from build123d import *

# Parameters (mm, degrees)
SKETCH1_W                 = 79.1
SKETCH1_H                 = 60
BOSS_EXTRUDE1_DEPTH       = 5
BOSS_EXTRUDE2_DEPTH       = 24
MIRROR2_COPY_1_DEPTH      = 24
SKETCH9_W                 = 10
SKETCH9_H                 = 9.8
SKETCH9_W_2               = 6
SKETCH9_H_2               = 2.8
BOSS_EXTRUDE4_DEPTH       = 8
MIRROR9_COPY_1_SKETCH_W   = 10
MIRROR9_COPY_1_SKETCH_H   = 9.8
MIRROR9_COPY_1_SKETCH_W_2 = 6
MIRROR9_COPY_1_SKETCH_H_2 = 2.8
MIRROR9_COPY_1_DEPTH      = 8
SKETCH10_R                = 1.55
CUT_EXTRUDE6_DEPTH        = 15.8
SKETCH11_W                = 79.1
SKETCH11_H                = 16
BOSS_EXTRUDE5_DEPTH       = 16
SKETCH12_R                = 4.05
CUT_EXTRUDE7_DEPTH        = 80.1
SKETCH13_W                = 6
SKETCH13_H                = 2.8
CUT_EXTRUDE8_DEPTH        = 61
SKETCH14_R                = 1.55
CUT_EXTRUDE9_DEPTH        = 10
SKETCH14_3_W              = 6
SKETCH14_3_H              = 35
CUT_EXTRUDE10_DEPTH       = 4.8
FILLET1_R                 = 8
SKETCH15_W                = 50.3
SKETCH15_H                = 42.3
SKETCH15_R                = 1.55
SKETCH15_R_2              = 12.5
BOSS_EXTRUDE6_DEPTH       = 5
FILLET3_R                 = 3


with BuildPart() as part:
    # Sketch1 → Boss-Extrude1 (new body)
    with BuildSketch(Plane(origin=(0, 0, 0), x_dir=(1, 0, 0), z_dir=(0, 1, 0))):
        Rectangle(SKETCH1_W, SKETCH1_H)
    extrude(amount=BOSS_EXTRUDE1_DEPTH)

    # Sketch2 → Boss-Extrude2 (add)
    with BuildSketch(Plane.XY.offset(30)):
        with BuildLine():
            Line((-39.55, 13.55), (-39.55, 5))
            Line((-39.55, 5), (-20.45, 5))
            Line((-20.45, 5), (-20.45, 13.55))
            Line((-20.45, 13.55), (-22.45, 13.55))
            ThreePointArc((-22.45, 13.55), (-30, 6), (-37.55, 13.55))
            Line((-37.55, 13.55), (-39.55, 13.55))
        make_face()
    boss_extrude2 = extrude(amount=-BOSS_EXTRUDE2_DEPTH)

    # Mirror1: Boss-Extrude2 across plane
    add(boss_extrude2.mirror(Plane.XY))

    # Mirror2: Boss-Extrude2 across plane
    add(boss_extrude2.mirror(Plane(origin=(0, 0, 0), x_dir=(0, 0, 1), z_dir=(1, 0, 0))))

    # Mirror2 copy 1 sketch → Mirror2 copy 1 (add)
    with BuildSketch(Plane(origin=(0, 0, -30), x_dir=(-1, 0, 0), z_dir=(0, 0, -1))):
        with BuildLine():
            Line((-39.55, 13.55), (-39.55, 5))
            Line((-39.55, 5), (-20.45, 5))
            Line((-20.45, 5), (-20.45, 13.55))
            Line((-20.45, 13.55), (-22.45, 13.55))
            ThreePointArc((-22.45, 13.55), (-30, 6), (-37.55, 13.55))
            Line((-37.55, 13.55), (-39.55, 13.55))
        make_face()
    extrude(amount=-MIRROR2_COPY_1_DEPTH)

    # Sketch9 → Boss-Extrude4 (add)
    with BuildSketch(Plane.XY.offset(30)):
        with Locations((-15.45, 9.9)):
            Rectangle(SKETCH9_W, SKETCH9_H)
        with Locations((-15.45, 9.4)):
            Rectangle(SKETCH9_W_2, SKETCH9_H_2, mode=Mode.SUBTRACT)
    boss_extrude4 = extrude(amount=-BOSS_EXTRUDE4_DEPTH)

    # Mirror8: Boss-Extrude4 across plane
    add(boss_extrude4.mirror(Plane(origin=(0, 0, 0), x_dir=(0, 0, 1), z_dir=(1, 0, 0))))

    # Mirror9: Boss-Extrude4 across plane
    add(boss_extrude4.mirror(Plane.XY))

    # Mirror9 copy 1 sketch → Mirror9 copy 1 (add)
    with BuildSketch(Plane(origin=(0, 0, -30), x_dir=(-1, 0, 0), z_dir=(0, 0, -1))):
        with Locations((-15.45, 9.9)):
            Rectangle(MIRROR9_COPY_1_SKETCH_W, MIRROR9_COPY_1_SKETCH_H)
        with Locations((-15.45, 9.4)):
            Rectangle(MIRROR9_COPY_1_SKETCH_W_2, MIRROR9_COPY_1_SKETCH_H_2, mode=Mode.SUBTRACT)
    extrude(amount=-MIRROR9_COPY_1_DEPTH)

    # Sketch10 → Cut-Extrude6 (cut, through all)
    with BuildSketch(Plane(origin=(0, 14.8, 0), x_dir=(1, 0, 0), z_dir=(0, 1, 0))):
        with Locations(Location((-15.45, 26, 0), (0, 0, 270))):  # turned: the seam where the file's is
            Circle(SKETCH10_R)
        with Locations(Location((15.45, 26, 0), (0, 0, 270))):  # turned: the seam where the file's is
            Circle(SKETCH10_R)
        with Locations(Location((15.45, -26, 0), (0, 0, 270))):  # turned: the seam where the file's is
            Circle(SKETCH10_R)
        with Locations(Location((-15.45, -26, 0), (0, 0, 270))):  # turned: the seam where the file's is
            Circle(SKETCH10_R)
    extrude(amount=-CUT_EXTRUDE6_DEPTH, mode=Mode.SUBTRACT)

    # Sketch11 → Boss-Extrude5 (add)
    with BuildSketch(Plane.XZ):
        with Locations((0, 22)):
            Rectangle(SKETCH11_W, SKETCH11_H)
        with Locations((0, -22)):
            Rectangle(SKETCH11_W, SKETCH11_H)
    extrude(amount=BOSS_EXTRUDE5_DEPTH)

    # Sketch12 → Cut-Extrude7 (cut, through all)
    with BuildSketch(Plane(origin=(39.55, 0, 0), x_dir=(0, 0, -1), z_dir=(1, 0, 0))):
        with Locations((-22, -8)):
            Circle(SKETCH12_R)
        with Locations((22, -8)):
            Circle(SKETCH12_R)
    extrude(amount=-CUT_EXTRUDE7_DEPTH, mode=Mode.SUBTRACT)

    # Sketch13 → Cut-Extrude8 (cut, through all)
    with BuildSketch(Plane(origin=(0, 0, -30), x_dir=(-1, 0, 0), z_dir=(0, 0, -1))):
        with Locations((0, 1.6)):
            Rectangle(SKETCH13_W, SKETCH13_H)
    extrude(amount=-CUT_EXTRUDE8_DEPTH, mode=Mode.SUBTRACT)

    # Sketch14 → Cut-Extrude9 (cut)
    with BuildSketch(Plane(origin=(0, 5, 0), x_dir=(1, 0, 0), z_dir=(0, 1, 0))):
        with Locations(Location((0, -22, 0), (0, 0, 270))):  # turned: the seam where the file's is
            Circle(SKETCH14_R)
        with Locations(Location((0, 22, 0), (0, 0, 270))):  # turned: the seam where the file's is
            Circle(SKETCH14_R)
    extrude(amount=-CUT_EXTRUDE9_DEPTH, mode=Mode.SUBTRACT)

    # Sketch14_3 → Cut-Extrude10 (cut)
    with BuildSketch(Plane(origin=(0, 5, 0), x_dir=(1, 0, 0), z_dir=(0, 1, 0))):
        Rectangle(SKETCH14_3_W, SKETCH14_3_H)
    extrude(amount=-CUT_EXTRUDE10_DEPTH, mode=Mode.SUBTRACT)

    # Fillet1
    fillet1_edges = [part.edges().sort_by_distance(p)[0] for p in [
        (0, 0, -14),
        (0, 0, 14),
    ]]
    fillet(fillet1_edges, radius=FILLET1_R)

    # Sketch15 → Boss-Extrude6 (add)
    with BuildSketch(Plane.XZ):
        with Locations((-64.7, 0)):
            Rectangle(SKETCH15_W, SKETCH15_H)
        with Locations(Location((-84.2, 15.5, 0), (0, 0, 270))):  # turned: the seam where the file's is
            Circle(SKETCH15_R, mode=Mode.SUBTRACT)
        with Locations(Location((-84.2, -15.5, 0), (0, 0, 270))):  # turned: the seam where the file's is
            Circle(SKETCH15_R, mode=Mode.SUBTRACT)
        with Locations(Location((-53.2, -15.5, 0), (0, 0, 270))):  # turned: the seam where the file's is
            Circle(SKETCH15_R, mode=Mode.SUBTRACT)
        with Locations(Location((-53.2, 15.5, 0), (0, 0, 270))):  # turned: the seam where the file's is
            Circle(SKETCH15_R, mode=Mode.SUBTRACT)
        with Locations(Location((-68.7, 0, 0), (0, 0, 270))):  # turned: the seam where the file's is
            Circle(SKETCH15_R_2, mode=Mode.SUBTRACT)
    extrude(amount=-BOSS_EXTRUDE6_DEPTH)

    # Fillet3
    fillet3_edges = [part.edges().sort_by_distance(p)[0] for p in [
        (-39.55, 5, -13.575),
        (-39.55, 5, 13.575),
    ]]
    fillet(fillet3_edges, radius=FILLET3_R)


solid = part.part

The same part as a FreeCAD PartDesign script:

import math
import FreeCAD as App
import Part
import Sketcher
Q = App.Units.Quantity


def edges_at(feature, points):
    """Names of the edges that pass closest to the given points."""
    edges = feature.Shape.Edges
    near = lambda p: min(range(len(edges)), key=lambda i: edges[i].distToShape(Part.Vertex(*p))[0])
    return sorted({f"Edge{near(p) + 1}" for p in points})

doc = App.newDocument("Part")
body = doc.addObject("PartDesign::Body", "Body")

sketch1 = body.newObject("Sketcher::SketchObject", "Sketch")
sketch1.AttachmentSupport = (doc.getObject("XZ_Plane"), [""])
sketch1.MapMode = "FlatFace"
sketch1.addGeometry(Part.LineSegment(App.Vector(-40, -30, 0), App.Vector(-40, 30, 0)), False)
sketch1.addGeometry(Part.LineSegment(App.Vector(-40, 30, 0), App.Vector(40, 30, 0)), False)
sketch1.addGeometry(Part.LineSegment(App.Vector(40, 30, 0), App.Vector(40, -30, 0)), False)
sketch1.addGeometry(Part.LineSegment(App.Vector(40, -30, 0), App.Vector(-40, -30, 0)), False)
sketch1.addConstraint(Sketcher.Constraint("Coincident", 0, 2, 1, 1))
sketch1.addConstraint(Sketcher.Constraint("Coincident", 1, 2, 2, 1))
sketch1.addConstraint(Sketcher.Constraint("Coincident", 2, 2, 3, 1))
sketch1.addConstraint(Sketcher.Constraint("Coincident", 3, 2, 0, 1))
sketch1.addConstraint(Sketcher.Constraint("Vertical", 0))
sketch1.addConstraint(Sketcher.Constraint("Horizontal", 1))
sketch1.addConstraint(Sketcher.Constraint("Vertical", 2))
sketch1.addConstraint(Sketcher.Constraint("Horizontal", 3))
sketch1.addConstraint(Sketcher.Constraint("Symmetric", 0, 2, 2, 2, -1, 1))
sketch1.addConstraint(Sketcher.Constraint("DistanceY", 0, 1, 0, 2, Q("60 mm")))
sketch1.addConstraint(Sketcher.Constraint("DistanceX", 1, 1, 1, 2, Q("79.1 mm")))
pad1 = body.newObject("PartDesign::Pad", "Pad")
pad1.Profile = sketch1
pad1.Length = 5
pad1.Reversed = True

sketch2 = body.newObject("Sketcher::SketchObject", "Sketch001")
sketch2.AttachmentSupport = (doc.getObject("XY_Plane"), [""])
sketch2.MapMode = "FlatFace"
sketch2.AttachmentOffset = App.Placement(App.Vector(0, 0, 30), App.Rotation())
sketch2.addGeometry(Part.LineSegment(App.Vector(-39.5, 13.6, 0), App.Vector(-39.5, 5, 0)), False)
sketch2.addGeometry(Part.LineSegment(App.Vector(-39.5, 5, 0), App.Vector(-20.4, 5, 0)), False)
sketch2.addGeometry(Part.LineSegment(App.Vector(-20.4, 5, 0), App.Vector(-20.4, 13.6, 0)), False)
sketch2.addGeometry(Part.LineSegment(App.Vector(-20.4, 13.6, 0), App.Vector(-22.4, 13.6, 0)), False)
sketch2.addGeometry(Part.ArcOfCircle(Part.Circle(App.Vector(-30, 13.6, 0), App.Vector(0, 0, 1), 7.5), math.radians(180), math.radians(360)), False)
sketch2.addGeometry(Part.LineSegment(App.Vector(-37.5, 13.6, 0), App.Vector(-39.5, 13.6, 0)), False)
sketch2.addConstraint(Sketcher.Constraint("Coincident", 0, 2, 1, 1))
sketch2.addConstraint(Sketcher.Constraint("Coincident", 1, 2, 2, 1))
sketch2.addConstraint(Sketcher.Constraint("Coincident", 2, 2, 3, 1))
sketch2.addConstraint(Sketcher.Constraint("Coincident", 3, 2, 4, 2))
sketch2.addConstraint(Sketcher.Constraint("Coincident", 4, 1, 5, 1))
sketch2.addConstraint(Sketcher.Constraint("Coincident", 5, 2, 0, 1))
sketch2.addConstraint(Sketcher.Constraint("Vertical", 0))
sketch2.addConstraint(Sketcher.Constraint("Horizontal", 1))
sketch2.addConstraint(Sketcher.Constraint("Vertical", 2))
sketch2.addConstraint(Sketcher.Constraint("Horizontal", 3))
sketch2.addConstraint(Sketcher.Constraint("Horizontal", 5))
sketch2.addConstraint(Sketcher.Constraint("Horizontal", 4, 3, 2, 2))
sketch2.addConstraint(Sketcher.Constraint("Horizontal", 3, 2, 4, 1))
sketch2.addConstraint(Sketcher.Constraint("Equal", 3, 5))
sketch2.addConstraint(Sketcher.Constraint("DistanceX", 3, 2, 3, 1, Q("2 mm")))
sketch2.addConstraint(Sketcher.Constraint("Radius", 4, Q("7.55 mm")))
sketch2.addConstraint(Sketcher.Constraint("DistanceX", 4, 3, -1, 1, Q("30 mm")))
sketch2.addConstraint(Sketcher.Constraint("DistanceY", -1, 1, 0, 2, Q("5 mm")))
sketch2.addConstraint(Sketcher.Constraint("DistanceY", 0, 2, 0, 1, Q("8.55 mm")))
pad2 = body.newObject("PartDesign::Pad", "Pad001")
pad2.Profile = sketch2
pad2.Length = 24
pad2.Reversed = True
doc.recompute()

mirrored = body.newObject("PartDesign::Mirrored", "Mirrored")
mirrored.Originals = [pad2]
mirrored.MirrorPlane = (doc.getObject("XY_Plane"), [""])
body.Tip = mirrored
doc.recompute()

mirrored2 = body.newObject("PartDesign::Mirrored", "Mirrored001")
mirrored2.Originals = [pad2]
mirrored2.MirrorPlane = (doc.getObject("YZ_Plane"), [""])
body.Tip = mirrored2

sketch3 = body.newObject("Sketcher::SketchObject", "Sketch002")
sketch3.AttachmentSupport = (doc.getObject("XY_Plane"), [""])
sketch3.MapMode = "FlatFace"
sketch3.AttachmentOffset = App.Placement(App.Vector(0, 0, -30), App.Rotation())
sketch3.addGeometry(Part.LineSegment(App.Vector(39.5, 13.6, 0), App.Vector(39.5, 5, 0)), False)
sketch3.addGeometry(Part.LineSegment(App.Vector(39.5, 5, 0), App.Vector(20.4, 5, 0)), False)
sketch3.addGeometry(Part.LineSegment(App.Vector(20.4, 5, 0), App.Vector(20.4, 13.6, 0)), False)
sketch3.addGeometry(Part.LineSegment(App.Vector(20.4, 13.6, 0), App.Vector(22.4, 13.6, 0)), False)
sketch3.addGeometry(Part.ArcOfCircle(Part.Circle(App.Vector(30, 13.6, 0), App.Vector(0, 0, 1), 7.5), math.radians(180), math.radians(360)), False)
sketch3.addGeometry(Part.LineSegment(App.Vector(37.5, 13.6, 0), App.Vector(39.5, 13.6, 0)), False)
sketch3.addConstraint(Sketcher.Constraint("Coincident", 0, 2, 1, 1))
sketch3.addConstraint(Sketcher.Constraint("Coincident", 1, 2, 2, 1))
sketch3.addConstraint(Sketcher.Constraint("Coincident", 2, 2, 3, 1))
sketch3.addConstraint(Sketcher.Constraint("Coincident", 3, 2, 4, 1))
sketch3.addConstraint(Sketcher.Constraint("Coincident", 4, 2, 5, 1))
sketch3.addConstraint(Sketcher.Constraint("Coincident", 5, 2, 0, 1))
sketch3.addConstraint(Sketcher.Constraint("Vertical", 0))
sketch3.addConstraint(Sketcher.Constraint("Horizontal", 1))
sketch3.addConstraint(Sketcher.Constraint("Vertical", 2))
sketch3.addConstraint(Sketcher.Constraint("Horizontal", 3))
sketch3.addConstraint(Sketcher.Constraint("Horizontal", 5))
sketch3.addConstraint(Sketcher.Constraint("Horizontal", 4, 3, 2, 2))
sketch3.addConstraint(Sketcher.Constraint("Horizontal", 3, 2, 4, 2))
sketch3.addConstraint(Sketcher.Constraint("Equal", 3, 5))
sketch3.addConstraint(Sketcher.Constraint("DistanceX", 3, 1, 3, 2, Q("2 mm")))
sketch3.addConstraint(Sketcher.Constraint("Radius", 4, Q("7.55 mm")))
sketch3.addConstraint(Sketcher.Constraint("DistanceX", -1, 1, 4, 3, Q("30 mm")))
sketch3.addConstraint(Sketcher.Constraint("DistanceY", -1, 1, 0, 2, Q("5 mm")))
sketch3.addConstraint(Sketcher.Constraint("DistanceY", 0, 2, 0, 1, Q("8.55 mm")))
pad3 = body.newObject("PartDesign::Pad", "Pad002")
pad3.Profile = sketch3
pad3.Length = 24

sketch4 = body.newObject("Sketcher::SketchObject", "Sketch003")
sketch4.AttachmentSupport = (doc.getObject("XY_Plane"), [""])
sketch4.MapMode = "FlatFace"
sketch4.AttachmentOffset = App.Placement(App.Vector(0, 0, 30), App.Rotation())
sketch4.addGeometry(Part.LineSegment(App.Vector(-20.4, 14.8, 0), App.Vector(-20.4, 5, 0)), False)
sketch4.addGeometry(Part.LineSegment(App.Vector(-20.4, 5, 0), App.Vector(-10.4, 5, 0)), False)
sketch4.addGeometry(Part.LineSegment(App.Vector(-10.4, 5, 0), App.Vector(-10.4, 14.8, 0)), False)
sketch4.addGeometry(Part.LineSegment(App.Vector(-10.4, 14.8, 0), App.Vector(-20.4, 14.8, 0)), False)
sketch4.addGeometry(Part.LineSegment(App.Vector(-12.4, 8, 0), App.Vector(-18.4, 8, 0)), False)
sketch4.addGeometry(Part.LineSegment(App.Vector(-18.4, 8, 0), App.Vector(-18.4, 10.8, 0)), False)
sketch4.addGeometry(Part.LineSegment(App.Vector(-18.4, 10.8, 0), App.Vector(-12.4, 10.8, 0)), False)
sketch4.addGeometry(Part.LineSegment(App.Vector(-12.4, 10.8, 0), App.Vector(-12.4, 8, 0)), False)
sketch4.addConstraint(Sketcher.Constraint("Coincident", 0, 2, 1, 1))
sketch4.addConstraint(Sketcher.Constraint("Coincident", 1, 2, 2, 1))
sketch4.addConstraint(Sketcher.Constraint("Coincident", 2, 2, 3, 1))
sketch4.addConstraint(Sketcher.Constraint("Coincident", 3, 2, 0, 1))
sketch4.addConstraint(Sketcher.Constraint("Coincident", 4, 2, 5, 1))
sketch4.addConstraint(Sketcher.Constraint("Coincident", 5, 2, 6, 1))
sketch4.addConstraint(Sketcher.Constraint("Coincident", 6, 2, 7, 1))
sketch4.addConstraint(Sketcher.Constraint("Coincident", 7, 2, 4, 1))
sketch4.addConstraint(Sketcher.Constraint("Vertical", 0))
sketch4.addConstraint(Sketcher.Constraint("Horizontal", 1))
sketch4.addConstraint(Sketcher.Constraint("Vertical", 2))
sketch4.addConstraint(Sketcher.Constraint("Horizontal", 3))
sketch4.addConstraint(Sketcher.Constraint("Horizontal", 4))
sketch4.addConstraint(Sketcher.Constraint("Vertical", 5))
sketch4.addConstraint(Sketcher.Constraint("Horizontal", 6))
sketch4.addConstraint(Sketcher.Constraint("Vertical", 7))
sketch4.addConstraint(Sketcher.Constraint("DistanceX", 1, 1, 1, 2, Q("10 mm")))
sketch4.addConstraint(Sketcher.Constraint("DistanceX", 4, 2, 4, 1, Q("6 mm")))
sketch4.addConstraint(Sketcher.Constraint("DistanceY", 0, 2, 0, 1, Q("9.8 mm")))
sketch4.addConstraint(Sketcher.Constraint("DistanceY", 5, 1, 5, 2, Q("2.8 mm")))
sketch4.addConstraint(Sketcher.Constraint("DistanceY", -1, 1, 0, 2, Q("5 mm")))
sketch4.addConstraint(Sketcher.Constraint("DistanceY", -1, 1, 4, 2, Q("8 mm")))
sketch4.addConstraint(Sketcher.Constraint("DistanceX", 0, 2, 4, 2, Q("2 mm")))
sketch4.addConstraint(Sketcher.Constraint("DistanceX", 0, 2, -1, 1, Q("20.45 mm")))
pad4 = body.newObject("PartDesign::Pad", "Pad003")
pad4.Profile = sketch4
pad4.Length = 8
pad4.Reversed = True
doc.recompute()

mirrored3 = body.newObject("PartDesign::Mirrored", "Mirrored002")
mirrored3.Originals = [pad4]
mirrored3.MirrorPlane = (doc.getObject("YZ_Plane"), [""])
body.Tip = mirrored3
doc.recompute()

mirrored4 = body.newObject("PartDesign::Mirrored", "Mirrored003")
mirrored4.Originals = [pad4]
mirrored4.MirrorPlane = (doc.getObject("XY_Plane"), [""])
body.Tip = mirrored4

sketch5 = body.newObject("Sketcher::SketchObject", "Sketch004")
sketch5.AttachmentSupport = (doc.getObject("XY_Plane"), [""])
sketch5.MapMode = "FlatFace"
sketch5.AttachmentOffset = App.Placement(App.Vector(0, 0, -30), App.Rotation())
sketch5.addGeometry(Part.LineSegment(App.Vector(20.4, 14.8, 0), App.Vector(20.4, 5, 0)), False)
sketch5.addGeometry(Part.LineSegment(App.Vector(20.4, 5, 0), App.Vector(10.4, 5, 0)), False)
sketch5.addGeometry(Part.LineSegment(App.Vector(10.4, 5, 0), App.Vector(10.4, 14.8, 0)), False)
sketch5.addGeometry(Part.LineSegment(App.Vector(10.4, 14.8, 0), App.Vector(20.4, 14.8, 0)), False)
sketch5.addGeometry(Part.LineSegment(App.Vector(12.4, 8, 0), App.Vector(18.4, 8, 0)), False)
sketch5.addGeometry(Part.LineSegment(App.Vector(18.4, 8, 0), App.Vector(18.4, 10.8, 0)), False)
sketch5.addGeometry(Part.LineSegment(App.Vector(18.4, 10.8, 0), App.Vector(12.4, 10.8, 0)), False)
sketch5.addGeometry(Part.LineSegment(App.Vector(12.4, 10.8, 0), App.Vector(12.4, 8, 0)), False)
sketch5.addConstraint(Sketcher.Constraint("Coincident", 0, 2, 1, 1))
sketch5.addConstraint(Sketcher.Constraint("Coincident", 1, 2, 2, 1))
sketch5.addConstraint(Sketcher.Constraint("Coincident", 2, 2, 3, 1))
sketch5.addConstraint(Sketcher.Constraint("Coincident", 3, 2, 0, 1))
sketch5.addConstraint(Sketcher.Constraint("Coincident", 4, 2, 5, 1))
sketch5.addConstraint(Sketcher.Constraint("Coincident", 5, 2, 6, 1))
sketch5.addConstraint(Sketcher.Constraint("Coincident", 6, 2, 7, 1))
sketch5.addConstraint(Sketcher.Constraint("Coincident", 7, 2, 4, 1))
sketch5.addConstraint(Sketcher.Constraint("Vertical", 0))
sketch5.addConstraint(Sketcher.Constraint("Horizontal", 1))
sketch5.addConstraint(Sketcher.Constraint("Vertical", 2))
sketch5.addConstraint(Sketcher.Constraint("Horizontal", 3))
sketch5.addConstraint(Sketcher.Constraint("Horizontal", 4))
sketch5.addConstraint(Sketcher.Constraint("Vertical", 5))
sketch5.addConstraint(Sketcher.Constraint("Horizontal", 6))
sketch5.addConstraint(Sketcher.Constraint("Vertical", 7))
sketch5.addConstraint(Sketcher.Constraint("DistanceX", 1, 2, 1, 1, Q("10 mm")))
sketch5.addConstraint(Sketcher.Constraint("DistanceX", 4, 1, 4, 2, Q("6 mm")))
sketch5.addConstraint(Sketcher.Constraint("DistanceY", 0, 2, 0, 1, Q("9.8 mm")))
sketch5.addConstraint(Sketcher.Constraint("DistanceY", 5, 1, 5, 2, Q("2.8 mm")))
sketch5.addConstraint(Sketcher.Constraint("DistanceY", -1, 1, 0, 2, Q("5 mm")))
sketch5.addConstraint(Sketcher.Constraint("DistanceY", -1, 1, 4, 2, Q("8 mm")))
sketch5.addConstraint(Sketcher.Constraint("DistanceX", 4, 2, 0, 2, Q("2 mm")))
sketch5.addConstraint(Sketcher.Constraint("DistanceX", -1, 1, 0, 2, Q("20.45 mm")))
pad5 = body.newObject("PartDesign::Pad", "Pad004")
pad5.Profile = sketch5
pad5.Length = 8

sketch6 = body.newObject("Sketcher::SketchObject", "Sketch005")
sketch6.AttachmentSupport = (doc.getObject("XZ_Plane"), [""])
sketch6.MapMode = "FlatFace"
sketch6.AttachmentOffset = App.Placement(App.Vector(0, 0, -14.8), App.Rotation())
sketch6.addGeometry(Part.Circle(App.Vector(-15.4, -26, 0), App.Vector(0, 0, 1), 1.6), False)
sketch6.addGeometry(Part.Circle(App.Vector(15.4, -26, 0), App.Vector(0, 0, 1), 1.6), False)
sketch6.addGeometry(Part.Circle(App.Vector(15.4, 26, 0), App.Vector(0, 0, 1), 1.6), False)
sketch6.addGeometry(Part.Circle(App.Vector(-15.4, 26, 0), App.Vector(0, 0, 1), 1.6), False)
sketch6.addConstraint(Sketcher.Constraint("Equal", 0, 1))
sketch6.addConstraint(Sketcher.Constraint("Equal", 1, 2))
sketch6.addConstraint(Sketcher.Constraint("Equal", 2, 3))
sketch6.addConstraint(Sketcher.Constraint("Symmetric", 0, 3, 2, 3, -1, 1))
sketch6.addConstraint(Sketcher.Constraint("Symmetric", 1, 3, 3, 3, -1, 1))
sketch6.addConstraint(Sketcher.Constraint("Symmetric", 0, 3, 1, 3, -2))
sketch6.addConstraint(Sketcher.Constraint("Diameter", 0, Q("3.1 mm")))
sketch6.addConstraint(Sketcher.Constraint("DistanceY", 0, 3, -1, 1, Q("26 mm")))
sketch6.addConstraint(Sketcher.Constraint("DistanceX", 0, 3, 1, 3, Q("30.9 mm")))
pocket1 = body.newObject("PartDesign::Pocket", "Pocket")
pocket1.Profile = sketch6
pocket1.Type = "ThroughAll"
pocket1.Reversed = True

sketch7 = body.newObject("Sketcher::SketchObject", "Sketch006")
sketch7.AttachmentSupport = (doc.getObject("XZ_Plane"), [""])
sketch7.MapMode = "FlatFace"
sketch7.addGeometry(Part.LineSegment(App.Vector(-40, 30, 0), App.Vector(-40, 14, 0)), False)
sketch7.addGeometry(Part.LineSegment(App.Vector(-40, 14, 0), App.Vector(40, 14, 0)), False)
sketch7.addGeometry(Part.LineSegment(App.Vector(40, 14, 0), App.Vector(40, 30, 0)), False)
sketch7.addGeometry(Part.LineSegment(App.Vector(40, 30, 0), App.Vector(-40, 30, 0)), False)
sketch7.addGeometry(Part.LineSegment(App.Vector(-40, -14, 0), App.Vector(-40, -30, 0)), False)
sketch7.addGeometry(Part.LineSegment(App.Vector(-40, -30, 0), App.Vector(40, -30, 0)), False)
sketch7.addGeometry(Part.LineSegment(App.Vector(40, -30, 0), App.Vector(40, -14, 0)), False)
sketch7.addGeometry(Part.LineSegment(App.Vector(40, -14, 0), App.Vector(-40, -14, 0)), False)
sketch7.addConstraint(Sketcher.Constraint("Coincident", 0, 2, 1, 1))
sketch7.addConstraint(Sketcher.Constraint("Coincident", 1, 2, 2, 1))
sketch7.addConstraint(Sketcher.Constraint("Coincident", 2, 2, 3, 1))
sketch7.addConstraint(Sketcher.Constraint("Coincident", 3, 2, 0, 1))
sketch7.addConstraint(Sketcher.Constraint("Coincident", 4, 2, 5, 1))
sketch7.addConstraint(Sketcher.Constraint("Coincident", 5, 2, 6, 1))
sketch7.addConstraint(Sketcher.Constraint("Coincident", 6, 2, 7, 1))
sketch7.addConstraint(Sketcher.Constraint("Coincident", 7, 2, 4, 1))
sketch7.addConstraint(Sketcher.Constraint("Vertical", 0))
sketch7.addConstraint(Sketcher.Constraint("Horizontal", 1))
sketch7.addConstraint(Sketcher.Constraint("Vertical", 2))
sketch7.addConstraint(Sketcher.Constraint("Horizontal", 3))
sketch7.addConstraint(Sketcher.Constraint("Vertical", 4))
sketch7.addConstraint(Sketcher.Constraint("Horizontal", 5))
sketch7.addConstraint(Sketcher.Constraint("Vertical", 6))
sketch7.addConstraint(Sketcher.Constraint("Horizontal", 7))
sketch7.addConstraint(Sketcher.Constraint("Symmetric", 2, 2, 4, 2, -1, 1))
sketch7.addConstraint(Sketcher.Constraint("Symmetric", 0, 2, 6, 2, -1, 1))
sketch7.addConstraint(Sketcher.Constraint("Vertical", 3, 2, 4, 2))
sketch7.addConstraint(Sketcher.Constraint("DistanceY", 0, 2, 0, 1, Q("16 mm")))
sketch7.addConstraint(Sketcher.Constraint("DistanceX", 1, 1, 1, 2, Q("79.1 mm")))
sketch7.addConstraint(Sketcher.Constraint("DistanceY", -1, 1, 0, 2, Q("14 mm")))
pad6 = body.newObject("PartDesign::Pad", "Pad005")
pad6.Profile = sketch7
pad6.Length = 16

sketch8 = body.newObject("Sketcher::SketchObject", "Sketch007")
sketch8.AttachmentSupport = (doc.getObject("YZ_Plane"), [""])
sketch8.MapMode = "FlatFace"
sketch8.AttachmentOffset = App.Placement(App.Vector(0, 0, 39.55), App.Rotation())
sketch8.addGeometry(Part.Circle(App.Vector(-8, 22, 0), App.Vector(0, 0, 1), 4), False)
sketch8.addGeometry(Part.Circle(App.Vector(-8, -22, 0), App.Vector(0, 0, 1), 4), False)
sketch8.addConstraint(Sketcher.Constraint("Equal", 0, 1))
sketch8.addConstraint(Sketcher.Constraint("Symmetric", 0, 3, 1, 3, -1))
sketch8.addConstraint(Sketcher.Constraint("Diameter", 0, Q("8.1 mm")))
sketch8.addConstraint(Sketcher.Constraint("DistanceX", 0, 3, -1, 1, Q("8 mm")))
sketch8.addConstraint(Sketcher.Constraint("DistanceY", -1, 1, 0, 3, Q("22 mm")))
pocket2 = body.newObject("PartDesign::Pocket", "Pocket001")
pocket2.Profile = sketch8
pocket2.Type = "ThroughAll"

sketch9 = body.newObject("Sketcher::SketchObject", "Sketch008")
sketch9.AttachmentSupport = (doc.getObject("XY_Plane"), [""])
sketch9.MapMode = "FlatFace"
sketch9.AttachmentOffset = App.Placement(App.Vector(0, 0, -30), App.Rotation())
sketch9.addGeometry(Part.LineSegment(App.Vector(3, 3, 0), App.Vector(3, 0.2, 0)), False)
sketch9.addGeometry(Part.LineSegment(App.Vector(3, 0.2, 0), App.Vector(-3, 0.2, 0)), False)
sketch9.addGeometry(Part.LineSegment(App.Vector(-3, 0.2, 0), App.Vector(-3, 3, 0)), False)
sketch9.addGeometry(Part.LineSegment(App.Vector(-3, 3, 0), App.Vector(3, 3, 0)), False)
sketch9.addConstraint(Sketcher.Constraint("Coincident", 0, 2, 1, 1))
sketch9.addConstraint(Sketcher.Constraint("Coincident", 1, 2, 2, 1))
sketch9.addConstraint(Sketcher.Constraint("Coincident", 2, 2, 3, 1))
sketch9.addConstraint(Sketcher.Constraint("Coincident", 3, 2, 0, 1))
sketch9.addConstraint(Sketcher.Constraint("Vertical", 0))
sketch9.addConstraint(Sketcher.Constraint("Horizontal", 1))
sketch9.addConstraint(Sketcher.Constraint("Vertical", 2))
sketch9.addConstraint(Sketcher.Constraint("Horizontal", 3))
sketch9.addConstraint(Sketcher.Constraint("DistanceX", 1, 2, 1, 1, Q("6 mm")))
sketch9.addConstraint(Sketcher.Constraint("DistanceY", 0, 2, 0, 1, Q("2.8 mm")))
sketch9.addConstraint(Sketcher.Constraint("DistanceX", -1, 1, 0, 2, Q("3 mm")))
sketch9.addConstraint(Sketcher.Constraint("DistanceY", -1, 1, 2, 2, Q("3 mm")))
pocket3 = body.newObject("PartDesign::Pocket", "Pocket002")
pocket3.Profile = sketch9
pocket3.Type = "ThroughAll"
pocket3.Reversed = True

sketch10 = body.newObject("Sketcher::SketchObject", "Sketch009")
sketch10.AttachmentSupport = (doc.getObject("XZ_Plane"), [""])
sketch10.MapMode = "FlatFace"
sketch10.AttachmentOffset = App.Placement(App.Vector(0, 0, -5), App.Rotation())
sketch10.addGeometry(Part.Circle(App.Vector(0, 22, 0), App.Vector(0, 0, 1), 1.6), False)
sketch10.addGeometry(Part.Circle(App.Vector(0, -22, 0), App.Vector(0, 0, 1), 1.6), False)
sketch10.addConstraint(Sketcher.Constraint("Equal", 0, 1))
sketch10.addConstraint(Sketcher.Constraint("Symmetric", 0, 3, 1, 3, -1, 1))
sketch10.addConstraint(Sketcher.Constraint("PointOnObject", 0, 3, -2))
sketch10.addConstraint(Sketcher.Constraint("Diameter", 0, Q("3.1 mm")))
sketch10.addConstraint(Sketcher.Constraint("DistanceY", -1, 1, 0, 3, Q("22 mm")))
pocket4 = body.newObject("PartDesign::Pocket", "Pocket003")
pocket4.Profile = sketch10
pocket4.Length = 10
pocket4.Reversed = True

sketch11 = body.newObject("Sketcher::SketchObject", "Sketch010")
sketch11.AttachmentSupport = (doc.getObject("XZ_Plane"), [""])
sketch11.MapMode = "FlatFace"
sketch11.AttachmentOffset = App.Placement(App.Vector(0, 0, -5), App.Rotation())
sketch11.addGeometry(Part.LineSegment(App.Vector(-3, -18, 0), App.Vector(-3, 18, 0)), False)
sketch11.addGeometry(Part.LineSegment(App.Vector(-3, 18, 0), App.Vector(3, 18, 0)), False)
sketch11.addGeometry(Part.LineSegment(App.Vector(3, 18, 0), App.Vector(3, -18, 0)), False)
sketch11.addGeometry(Part.LineSegment(App.Vector(3, -18, 0), App.Vector(-3, -18, 0)), False)
sketch11.addConstraint(Sketcher.Constraint("Coincident", 0, 2, 1, 1))
sketch11.addConstraint(Sketcher.Constraint("Coincident", 1, 2, 2, 1))
sketch11.addConstraint(Sketcher.Constraint("Coincident", 2, 2, 3, 1))
sketch11.addConstraint(Sketcher.Constraint("Coincident", 3, 2, 0, 1))
sketch11.addConstraint(Sketcher.Constraint("Vertical", 0))
sketch11.addConstraint(Sketcher.Constraint("Horizontal", 1))
sketch11.addConstraint(Sketcher.Constraint("Vertical", 2))
sketch11.addConstraint(Sketcher.Constraint("Horizontal", 3))
sketch11.addConstraint(Sketcher.Constraint("Symmetric", 0, 2, 2, 2, -1, 1))
sketch11.addConstraint(Sketcher.Constraint("DistanceX", 1, 1, 1, 2, Q("6 mm")))
sketch11.addConstraint(Sketcher.Constraint("DistanceY", 0, 1, 0, 2, Q("35 mm")))
pocket5 = body.newObject("PartDesign::Pocket", "Pocket004")
pocket5.Profile = sketch11
pocket5.Length = 4.8
pocket5.Reversed = True
doc.recompute()

fillet = body.newObject("PartDesign::Fillet", "Fillet")
fillet.Base = (pocket5, edges_at(pocket5, [(0, 0, -14), (0, 0, 14)]))
fillet.Radius = 8

sketch12 = body.newObject("Sketcher::SketchObject", "Sketch011")
sketch12.AttachmentSupport = (doc.getObject("XZ_Plane"), [""])
sketch12.MapMode = "FlatFace"
sketch12.addGeometry(Part.LineSegment(App.Vector(-89.8, 21.1, 0), App.Vector(-89.8, -21.1, 0)), False)
sketch12.addGeometry(Part.LineSegment(App.Vector(-89.8, -21.1, 0), App.Vector(-39.5, -21.1, 0)), False)
sketch12.addGeometry(Part.LineSegment(App.Vector(-39.5, -21.1, 0), App.Vector(-39.5, 21.1, 0)), False)
sketch12.addGeometry(Part.LineSegment(App.Vector(-39.5, 21.1, 0), App.Vector(-89.8, 21.1, 0)), False)
sketch12.addGeometry(Part.Circle(App.Vector(-84.2, -15.5, 0), App.Vector(0, 0, 1), 1.6), False)
sketch12.addGeometry(Part.Circle(App.Vector(-53.2, -15.5, 0), App.Vector(0, 0, 1), 1.6), False)
sketch12.addGeometry(Part.Circle(App.Vector(-84.2, 15.5, 0), App.Vector(0, 0, 1), 1.6), False)
sketch12.addGeometry(Part.Circle(App.Vector(-68.7, 0, 0), App.Vector(0, 0, 1), 12.5), False)
sketch12.addGeometry(Part.Circle(App.Vector(-53.2, 15.5, 0), App.Vector(0, 0, 1), 1.6), False)
sketch12.addConstraint(Sketcher.Constraint("Coincident", 0, 2, 1, 1))
sketch12.addConstraint(Sketcher.Constraint("Coincident", 1, 2, 2, 1))
sketch12.addConstraint(Sketcher.Constraint("Coincident", 2, 2, 3, 1))
sketch12.addConstraint(Sketcher.Constraint("Coincident", 3, 2, 0, 1))
sketch12.addConstraint(Sketcher.Constraint("Vertical", 0))
sketch12.addConstraint(Sketcher.Constraint("Horizontal", 1))
sketch12.addConstraint(Sketcher.Constraint("Vertical", 2))
sketch12.addConstraint(Sketcher.Constraint("Horizontal", 3))
sketch12.addConstraint(Sketcher.Constraint("Equal", 4, 5))
sketch12.addConstraint(Sketcher.Constraint("Equal", 5, 6))
sketch12.addConstraint(Sketcher.Constraint("Equal", 6, 8))
sketch12.addConstraint(Sketcher.Constraint("Symmetric", 4, 3, 6, 3, -1))
sketch12.addConstraint(Sketcher.Constraint("Symmetric", 5, 3, 8, 3, -1))
sketch12.addConstraint(Sketcher.Constraint("PointOnObject", 7, 3, -1))
sketch12.addConstraint(Sketcher.Constraint("Horizontal", 4, 3, 5, 3))
sketch12.addConstraint(Sketcher.Constraint("Diameter", 7, Q("25 mm")))
sketch12.addConstraint(Sketcher.Constraint("Diameter", 4, Q("3.1 mm")))
sketch12.addConstraint(Sketcher.Constraint("DistanceX", 1, 1, 1, 2, Q("50.3 mm")))
sketch12.addConstraint(Sketcher.Constraint("DistanceY", 0, 2, 0, 1, Q("42.3 mm")))
sketch12.addConstraint(Sketcher.Constraint("DistanceX", 4, 3, 5, 3, Q("31 mm")))
sketch12.addConstraint(Sketcher.Constraint("DistanceY", 4, 3, 6, 3, Q("31 mm")))
sketch12.addConstraint(Sketcher.Constraint("DistanceX", 4, 3, -1, 1, Q("84.2 mm")))
sketch12.addConstraint(Sketcher.Constraint("DistanceX", 7, 3, -1, 1, Q("68.7 mm")))
sketch12.addConstraint(Sketcher.Constraint("DistanceX", 0, 2, -1, 1, Q("89.85 mm")))
sketch12.addConstraint(Sketcher.Constraint("DistanceY", 0, 2, -1, 1, Q("21.15 mm")))
pad7 = body.newObject("PartDesign::Pad", "Pad006")
pad7.Profile = sketch12
pad7.Length = 5
pad7.Reversed = True
doc.recompute()

fillet2 = body.newObject("PartDesign::Fillet", "Fillet001")
fillet2.Base = (pad7, edges_at(pad7, [(-39.55, 5, -13.575), (-39.55, 5, 13.575)]))
fillet2.Radius = 3

doc.recompute()
